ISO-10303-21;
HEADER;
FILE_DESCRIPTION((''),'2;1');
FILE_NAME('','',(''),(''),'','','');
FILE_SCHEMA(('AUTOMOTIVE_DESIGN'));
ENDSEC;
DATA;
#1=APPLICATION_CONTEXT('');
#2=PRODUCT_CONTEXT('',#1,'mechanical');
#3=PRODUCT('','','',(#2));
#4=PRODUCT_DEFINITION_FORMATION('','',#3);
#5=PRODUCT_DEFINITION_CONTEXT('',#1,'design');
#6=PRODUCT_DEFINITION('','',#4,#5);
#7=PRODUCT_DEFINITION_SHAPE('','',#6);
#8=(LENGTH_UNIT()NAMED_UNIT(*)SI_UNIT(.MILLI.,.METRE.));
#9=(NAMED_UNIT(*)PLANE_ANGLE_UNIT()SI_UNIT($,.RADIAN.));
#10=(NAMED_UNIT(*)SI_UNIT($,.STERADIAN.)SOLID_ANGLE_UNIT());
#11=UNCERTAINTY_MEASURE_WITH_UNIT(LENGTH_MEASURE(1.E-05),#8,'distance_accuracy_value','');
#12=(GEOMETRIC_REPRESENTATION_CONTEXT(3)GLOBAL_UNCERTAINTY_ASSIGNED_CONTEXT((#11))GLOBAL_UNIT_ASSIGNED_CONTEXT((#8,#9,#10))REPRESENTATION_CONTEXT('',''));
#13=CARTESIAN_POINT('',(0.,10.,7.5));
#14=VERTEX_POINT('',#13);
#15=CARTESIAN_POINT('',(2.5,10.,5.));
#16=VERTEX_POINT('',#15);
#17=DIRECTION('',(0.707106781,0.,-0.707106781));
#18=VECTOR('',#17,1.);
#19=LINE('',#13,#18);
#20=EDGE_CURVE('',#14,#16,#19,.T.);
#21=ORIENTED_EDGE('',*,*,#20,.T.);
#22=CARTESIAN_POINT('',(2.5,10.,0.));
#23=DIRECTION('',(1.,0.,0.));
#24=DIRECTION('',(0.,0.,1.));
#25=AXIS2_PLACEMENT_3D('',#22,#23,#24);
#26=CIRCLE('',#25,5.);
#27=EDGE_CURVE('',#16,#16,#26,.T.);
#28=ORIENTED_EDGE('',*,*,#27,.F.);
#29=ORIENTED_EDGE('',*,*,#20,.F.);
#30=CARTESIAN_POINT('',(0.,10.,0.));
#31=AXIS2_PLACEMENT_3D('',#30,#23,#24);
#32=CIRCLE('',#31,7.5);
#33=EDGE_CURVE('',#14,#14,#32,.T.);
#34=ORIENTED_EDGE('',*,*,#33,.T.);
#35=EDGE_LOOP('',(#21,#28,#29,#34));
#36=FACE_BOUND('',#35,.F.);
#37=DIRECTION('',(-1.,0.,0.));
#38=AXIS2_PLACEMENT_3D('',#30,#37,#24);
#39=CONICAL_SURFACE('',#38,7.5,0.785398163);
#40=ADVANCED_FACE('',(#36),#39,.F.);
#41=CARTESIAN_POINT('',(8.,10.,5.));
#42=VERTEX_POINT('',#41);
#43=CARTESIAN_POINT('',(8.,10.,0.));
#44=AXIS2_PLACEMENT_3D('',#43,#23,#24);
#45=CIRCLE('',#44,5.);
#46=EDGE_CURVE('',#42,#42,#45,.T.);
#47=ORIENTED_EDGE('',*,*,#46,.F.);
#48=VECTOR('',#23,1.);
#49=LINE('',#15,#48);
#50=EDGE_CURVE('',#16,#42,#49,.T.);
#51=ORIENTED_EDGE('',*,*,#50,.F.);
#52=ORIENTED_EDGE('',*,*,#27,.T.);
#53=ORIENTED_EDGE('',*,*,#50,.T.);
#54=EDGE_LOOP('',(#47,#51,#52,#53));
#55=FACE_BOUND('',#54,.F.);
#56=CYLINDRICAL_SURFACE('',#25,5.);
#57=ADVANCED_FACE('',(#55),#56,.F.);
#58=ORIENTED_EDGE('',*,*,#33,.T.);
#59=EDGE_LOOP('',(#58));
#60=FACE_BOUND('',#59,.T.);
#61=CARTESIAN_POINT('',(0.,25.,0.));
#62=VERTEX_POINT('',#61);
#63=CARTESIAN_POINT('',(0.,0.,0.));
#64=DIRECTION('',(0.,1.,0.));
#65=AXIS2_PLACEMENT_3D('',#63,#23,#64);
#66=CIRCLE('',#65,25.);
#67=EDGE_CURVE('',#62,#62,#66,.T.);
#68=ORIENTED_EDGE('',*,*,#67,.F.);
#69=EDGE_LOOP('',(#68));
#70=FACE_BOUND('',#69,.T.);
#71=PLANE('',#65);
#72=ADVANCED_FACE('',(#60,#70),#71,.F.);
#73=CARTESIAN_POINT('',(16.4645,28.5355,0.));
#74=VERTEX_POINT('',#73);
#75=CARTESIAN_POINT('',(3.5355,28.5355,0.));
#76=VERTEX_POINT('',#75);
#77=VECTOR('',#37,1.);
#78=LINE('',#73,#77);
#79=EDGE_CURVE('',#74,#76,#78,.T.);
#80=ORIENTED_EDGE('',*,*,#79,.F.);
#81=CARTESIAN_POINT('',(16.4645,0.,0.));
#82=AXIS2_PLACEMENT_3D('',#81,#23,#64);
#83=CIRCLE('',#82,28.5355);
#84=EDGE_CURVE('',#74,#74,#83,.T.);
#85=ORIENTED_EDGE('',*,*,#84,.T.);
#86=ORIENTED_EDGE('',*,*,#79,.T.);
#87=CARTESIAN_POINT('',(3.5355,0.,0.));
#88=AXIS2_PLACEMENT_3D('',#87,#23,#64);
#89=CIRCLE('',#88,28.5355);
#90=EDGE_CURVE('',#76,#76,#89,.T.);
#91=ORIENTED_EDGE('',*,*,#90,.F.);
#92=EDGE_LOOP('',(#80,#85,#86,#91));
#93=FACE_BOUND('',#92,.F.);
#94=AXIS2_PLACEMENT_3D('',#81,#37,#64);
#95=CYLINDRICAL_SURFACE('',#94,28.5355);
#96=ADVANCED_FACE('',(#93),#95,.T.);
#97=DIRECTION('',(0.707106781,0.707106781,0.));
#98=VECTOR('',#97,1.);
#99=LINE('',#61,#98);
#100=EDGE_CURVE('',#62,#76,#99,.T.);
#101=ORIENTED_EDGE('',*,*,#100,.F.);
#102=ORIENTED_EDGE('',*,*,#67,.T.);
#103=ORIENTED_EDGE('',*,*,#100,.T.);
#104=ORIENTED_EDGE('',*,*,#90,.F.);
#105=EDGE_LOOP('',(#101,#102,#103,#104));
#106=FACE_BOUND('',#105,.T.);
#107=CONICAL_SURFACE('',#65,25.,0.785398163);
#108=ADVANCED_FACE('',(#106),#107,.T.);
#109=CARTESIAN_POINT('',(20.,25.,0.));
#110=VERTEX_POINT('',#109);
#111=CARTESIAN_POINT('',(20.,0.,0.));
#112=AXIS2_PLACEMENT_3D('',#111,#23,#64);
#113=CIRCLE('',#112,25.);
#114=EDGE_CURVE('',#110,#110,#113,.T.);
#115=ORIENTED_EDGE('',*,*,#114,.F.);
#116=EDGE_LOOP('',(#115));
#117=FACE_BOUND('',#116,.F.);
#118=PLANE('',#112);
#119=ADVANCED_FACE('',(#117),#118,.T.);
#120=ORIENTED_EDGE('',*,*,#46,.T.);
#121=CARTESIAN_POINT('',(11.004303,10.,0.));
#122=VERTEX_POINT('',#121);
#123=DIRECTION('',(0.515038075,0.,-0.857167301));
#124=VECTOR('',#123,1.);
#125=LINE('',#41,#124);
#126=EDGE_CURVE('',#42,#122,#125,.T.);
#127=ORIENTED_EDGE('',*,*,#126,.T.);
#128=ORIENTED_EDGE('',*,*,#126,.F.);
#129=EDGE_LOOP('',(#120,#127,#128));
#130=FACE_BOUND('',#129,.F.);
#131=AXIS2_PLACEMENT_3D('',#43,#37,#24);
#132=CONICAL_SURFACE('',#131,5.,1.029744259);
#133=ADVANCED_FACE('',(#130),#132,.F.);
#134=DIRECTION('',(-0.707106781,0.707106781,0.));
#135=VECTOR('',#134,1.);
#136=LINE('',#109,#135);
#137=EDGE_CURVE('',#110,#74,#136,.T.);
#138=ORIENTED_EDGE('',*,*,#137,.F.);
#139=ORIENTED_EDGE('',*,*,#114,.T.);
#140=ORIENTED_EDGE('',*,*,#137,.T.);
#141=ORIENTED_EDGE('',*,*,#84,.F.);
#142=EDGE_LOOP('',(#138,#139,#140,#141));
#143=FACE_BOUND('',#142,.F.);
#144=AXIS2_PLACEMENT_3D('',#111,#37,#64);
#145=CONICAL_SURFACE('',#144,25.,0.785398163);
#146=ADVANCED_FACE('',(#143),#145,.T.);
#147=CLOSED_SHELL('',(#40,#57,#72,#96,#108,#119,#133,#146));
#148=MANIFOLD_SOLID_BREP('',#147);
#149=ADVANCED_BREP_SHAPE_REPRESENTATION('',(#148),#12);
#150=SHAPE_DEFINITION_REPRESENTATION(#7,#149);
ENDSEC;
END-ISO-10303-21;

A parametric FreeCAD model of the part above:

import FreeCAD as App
import Part
import Sketcher
from FreeCAD import Vector
Q = App.Units.Quantity


def add_polygon(sketch, points):
    """Adds a closed chain of lines whose ends are joined by coincident constraints."""
    first, n = sketch.GeometryCount, len(points)
    for a, b in zip(points, points[1:] + points[:1]):
        sketch.addGeometry(Part.LineSegment(App.Vector(*a, 0), App.Vector(*b, 0)), False)
    for i in range(n):
        sketch.addConstraint(Sketcher.Constraint("Coincident", first + i, 2, first + (i + 1) % n, 1))

doc = App.newDocument("Part")
params = doc.addObject("Spreadsheet::Sheet", "Params")
for row, (alias, value) in enumerate([
    ("sketch1_width", "20 mm"),
    ("sketch1_height", "25 mm"),
    ("sketch1_length", "5 mm"),
    ("revolution_angle", "360 deg"),
    ("sketch2_diameter", "10 mm"),
    ("hole_diameter", "10 mm"),
    ("hole_depth", "8 mm"),
    ("hole_csink_diameter", "15 mm"),
], start=1):
    params.set(f"A{row}", alias)
    params.set(f"B{row}", "=" + value)
    params.setAlias(f"B{row}", alias)

body = doc.addObject("PartDesign::Body", "Body")

# Sketch on XY plane
sketch1 = body.newObject("Sketcher::SketchObject", "Sketch")
sketch1.AttachmentSupport = (doc.getObject("XY_Plane"), [""])
sketch1.MapMode = "FlatFace"
add_polygon(sketch1, [(0, 25), (0, 0), (20, 0), (20, 25), (16.4645, 28.5355), (3.5355, 28.5355)])  # lines 0-5
sketch1.addConstraint(Sketcher.Constraint("Vertical", 0))
sketch1.addConstraint(Sketcher.Constraint("Horizontal", 1))
sketch1.addConstraint(Sketcher.Constraint("Vertical", 2))
sketch1.addConstraint(Sketcher.Constraint("Horizontal", 4))
sketch1.addConstraint(Sketcher.Constraint("Coincident", 0, 2, -1, 1))
sketch1.addConstraint(Sketcher.Constraint("Perpendicular", 3, 5))
sketch1.addConstraint(Sketcher.Constraint("Horizontal", 2, 2, 5, 2))
sketch1.addConstraint(Sketcher.Constraint("Equal", 3, 5))
sketch1.addConstraint(Sketcher.Constraint("DistanceX", 1, 1, 1, 2, Q("20 mm")))
sketch1.addConstraint(Sketcher.Constraint("DistanceY", 0, 2, 0, 1, Q("25 mm")))
sketch1.addConstraint(Sketcher.Constraint("Distance", 3, Q("5 mm")))
sketch1.setExpression("Constraints[14]", "Params.sketch1_width")
sketch1.setExpression("Constraints[15]", "Params.sketch1_height")
sketch1.setExpression("Constraints[16]", "Params.sketch1_length")
revolution = body.newObject("PartDesign::Revolution", "Revolution")
revolution.Profile = sketch1
revolution.ReferenceAxis = (sketch1, ["H_Axis"])
revolution.setExpression("Angle", "Params.revolution_angle")

# Sketch on YZ plane
sketch2 = body.newObject("Sketcher::SketchObject", "Sketch001")
sketch2.AttachmentSupport = (doc.getObject("YZ_Plane"), [""])
sketch2.MapMode = "FlatFace"
sketch2.addGeometry(Part.Circle(Vector(10, 0, 0), Vector(0, 0, 1), 5), False)
sketch2.addConstraint(Sketcher.Constraint("PointOnObject", 0, 3, -1))
sketch2.addConstraint(Sketcher.Constraint("Diameter", 0, Q("10 mm")))
sketch2.addConstraint(Sketcher.Constraint("DistanceX", -1, 1, 0, 3, Q("10 mm")))
sketch2.setExpression("Constraints[1]", "Params.sketch2_diameter")
doc.recompute()
hole = body.newObject("PartDesign::Hole", "Hole")
hole.Profile = sketch2
hole.ThreadType = "None"
hole.setExpression("Diameter", "Params.hole_diameter")
hole.DepthType = "Dimension"
hole.setExpression("Depth", "Params.hole_depth")
hole.DrillPoint = "Angled"
hole.DrillPointAngle = 118
hole.HoleCutType = "Countersink"
hole.setExpression("HoleCutDiameter", "Params.hole_csink_diameter")
hole.HoleCutCountersinkAngle = 90
hole.Reversed = True

doc.recompute()
